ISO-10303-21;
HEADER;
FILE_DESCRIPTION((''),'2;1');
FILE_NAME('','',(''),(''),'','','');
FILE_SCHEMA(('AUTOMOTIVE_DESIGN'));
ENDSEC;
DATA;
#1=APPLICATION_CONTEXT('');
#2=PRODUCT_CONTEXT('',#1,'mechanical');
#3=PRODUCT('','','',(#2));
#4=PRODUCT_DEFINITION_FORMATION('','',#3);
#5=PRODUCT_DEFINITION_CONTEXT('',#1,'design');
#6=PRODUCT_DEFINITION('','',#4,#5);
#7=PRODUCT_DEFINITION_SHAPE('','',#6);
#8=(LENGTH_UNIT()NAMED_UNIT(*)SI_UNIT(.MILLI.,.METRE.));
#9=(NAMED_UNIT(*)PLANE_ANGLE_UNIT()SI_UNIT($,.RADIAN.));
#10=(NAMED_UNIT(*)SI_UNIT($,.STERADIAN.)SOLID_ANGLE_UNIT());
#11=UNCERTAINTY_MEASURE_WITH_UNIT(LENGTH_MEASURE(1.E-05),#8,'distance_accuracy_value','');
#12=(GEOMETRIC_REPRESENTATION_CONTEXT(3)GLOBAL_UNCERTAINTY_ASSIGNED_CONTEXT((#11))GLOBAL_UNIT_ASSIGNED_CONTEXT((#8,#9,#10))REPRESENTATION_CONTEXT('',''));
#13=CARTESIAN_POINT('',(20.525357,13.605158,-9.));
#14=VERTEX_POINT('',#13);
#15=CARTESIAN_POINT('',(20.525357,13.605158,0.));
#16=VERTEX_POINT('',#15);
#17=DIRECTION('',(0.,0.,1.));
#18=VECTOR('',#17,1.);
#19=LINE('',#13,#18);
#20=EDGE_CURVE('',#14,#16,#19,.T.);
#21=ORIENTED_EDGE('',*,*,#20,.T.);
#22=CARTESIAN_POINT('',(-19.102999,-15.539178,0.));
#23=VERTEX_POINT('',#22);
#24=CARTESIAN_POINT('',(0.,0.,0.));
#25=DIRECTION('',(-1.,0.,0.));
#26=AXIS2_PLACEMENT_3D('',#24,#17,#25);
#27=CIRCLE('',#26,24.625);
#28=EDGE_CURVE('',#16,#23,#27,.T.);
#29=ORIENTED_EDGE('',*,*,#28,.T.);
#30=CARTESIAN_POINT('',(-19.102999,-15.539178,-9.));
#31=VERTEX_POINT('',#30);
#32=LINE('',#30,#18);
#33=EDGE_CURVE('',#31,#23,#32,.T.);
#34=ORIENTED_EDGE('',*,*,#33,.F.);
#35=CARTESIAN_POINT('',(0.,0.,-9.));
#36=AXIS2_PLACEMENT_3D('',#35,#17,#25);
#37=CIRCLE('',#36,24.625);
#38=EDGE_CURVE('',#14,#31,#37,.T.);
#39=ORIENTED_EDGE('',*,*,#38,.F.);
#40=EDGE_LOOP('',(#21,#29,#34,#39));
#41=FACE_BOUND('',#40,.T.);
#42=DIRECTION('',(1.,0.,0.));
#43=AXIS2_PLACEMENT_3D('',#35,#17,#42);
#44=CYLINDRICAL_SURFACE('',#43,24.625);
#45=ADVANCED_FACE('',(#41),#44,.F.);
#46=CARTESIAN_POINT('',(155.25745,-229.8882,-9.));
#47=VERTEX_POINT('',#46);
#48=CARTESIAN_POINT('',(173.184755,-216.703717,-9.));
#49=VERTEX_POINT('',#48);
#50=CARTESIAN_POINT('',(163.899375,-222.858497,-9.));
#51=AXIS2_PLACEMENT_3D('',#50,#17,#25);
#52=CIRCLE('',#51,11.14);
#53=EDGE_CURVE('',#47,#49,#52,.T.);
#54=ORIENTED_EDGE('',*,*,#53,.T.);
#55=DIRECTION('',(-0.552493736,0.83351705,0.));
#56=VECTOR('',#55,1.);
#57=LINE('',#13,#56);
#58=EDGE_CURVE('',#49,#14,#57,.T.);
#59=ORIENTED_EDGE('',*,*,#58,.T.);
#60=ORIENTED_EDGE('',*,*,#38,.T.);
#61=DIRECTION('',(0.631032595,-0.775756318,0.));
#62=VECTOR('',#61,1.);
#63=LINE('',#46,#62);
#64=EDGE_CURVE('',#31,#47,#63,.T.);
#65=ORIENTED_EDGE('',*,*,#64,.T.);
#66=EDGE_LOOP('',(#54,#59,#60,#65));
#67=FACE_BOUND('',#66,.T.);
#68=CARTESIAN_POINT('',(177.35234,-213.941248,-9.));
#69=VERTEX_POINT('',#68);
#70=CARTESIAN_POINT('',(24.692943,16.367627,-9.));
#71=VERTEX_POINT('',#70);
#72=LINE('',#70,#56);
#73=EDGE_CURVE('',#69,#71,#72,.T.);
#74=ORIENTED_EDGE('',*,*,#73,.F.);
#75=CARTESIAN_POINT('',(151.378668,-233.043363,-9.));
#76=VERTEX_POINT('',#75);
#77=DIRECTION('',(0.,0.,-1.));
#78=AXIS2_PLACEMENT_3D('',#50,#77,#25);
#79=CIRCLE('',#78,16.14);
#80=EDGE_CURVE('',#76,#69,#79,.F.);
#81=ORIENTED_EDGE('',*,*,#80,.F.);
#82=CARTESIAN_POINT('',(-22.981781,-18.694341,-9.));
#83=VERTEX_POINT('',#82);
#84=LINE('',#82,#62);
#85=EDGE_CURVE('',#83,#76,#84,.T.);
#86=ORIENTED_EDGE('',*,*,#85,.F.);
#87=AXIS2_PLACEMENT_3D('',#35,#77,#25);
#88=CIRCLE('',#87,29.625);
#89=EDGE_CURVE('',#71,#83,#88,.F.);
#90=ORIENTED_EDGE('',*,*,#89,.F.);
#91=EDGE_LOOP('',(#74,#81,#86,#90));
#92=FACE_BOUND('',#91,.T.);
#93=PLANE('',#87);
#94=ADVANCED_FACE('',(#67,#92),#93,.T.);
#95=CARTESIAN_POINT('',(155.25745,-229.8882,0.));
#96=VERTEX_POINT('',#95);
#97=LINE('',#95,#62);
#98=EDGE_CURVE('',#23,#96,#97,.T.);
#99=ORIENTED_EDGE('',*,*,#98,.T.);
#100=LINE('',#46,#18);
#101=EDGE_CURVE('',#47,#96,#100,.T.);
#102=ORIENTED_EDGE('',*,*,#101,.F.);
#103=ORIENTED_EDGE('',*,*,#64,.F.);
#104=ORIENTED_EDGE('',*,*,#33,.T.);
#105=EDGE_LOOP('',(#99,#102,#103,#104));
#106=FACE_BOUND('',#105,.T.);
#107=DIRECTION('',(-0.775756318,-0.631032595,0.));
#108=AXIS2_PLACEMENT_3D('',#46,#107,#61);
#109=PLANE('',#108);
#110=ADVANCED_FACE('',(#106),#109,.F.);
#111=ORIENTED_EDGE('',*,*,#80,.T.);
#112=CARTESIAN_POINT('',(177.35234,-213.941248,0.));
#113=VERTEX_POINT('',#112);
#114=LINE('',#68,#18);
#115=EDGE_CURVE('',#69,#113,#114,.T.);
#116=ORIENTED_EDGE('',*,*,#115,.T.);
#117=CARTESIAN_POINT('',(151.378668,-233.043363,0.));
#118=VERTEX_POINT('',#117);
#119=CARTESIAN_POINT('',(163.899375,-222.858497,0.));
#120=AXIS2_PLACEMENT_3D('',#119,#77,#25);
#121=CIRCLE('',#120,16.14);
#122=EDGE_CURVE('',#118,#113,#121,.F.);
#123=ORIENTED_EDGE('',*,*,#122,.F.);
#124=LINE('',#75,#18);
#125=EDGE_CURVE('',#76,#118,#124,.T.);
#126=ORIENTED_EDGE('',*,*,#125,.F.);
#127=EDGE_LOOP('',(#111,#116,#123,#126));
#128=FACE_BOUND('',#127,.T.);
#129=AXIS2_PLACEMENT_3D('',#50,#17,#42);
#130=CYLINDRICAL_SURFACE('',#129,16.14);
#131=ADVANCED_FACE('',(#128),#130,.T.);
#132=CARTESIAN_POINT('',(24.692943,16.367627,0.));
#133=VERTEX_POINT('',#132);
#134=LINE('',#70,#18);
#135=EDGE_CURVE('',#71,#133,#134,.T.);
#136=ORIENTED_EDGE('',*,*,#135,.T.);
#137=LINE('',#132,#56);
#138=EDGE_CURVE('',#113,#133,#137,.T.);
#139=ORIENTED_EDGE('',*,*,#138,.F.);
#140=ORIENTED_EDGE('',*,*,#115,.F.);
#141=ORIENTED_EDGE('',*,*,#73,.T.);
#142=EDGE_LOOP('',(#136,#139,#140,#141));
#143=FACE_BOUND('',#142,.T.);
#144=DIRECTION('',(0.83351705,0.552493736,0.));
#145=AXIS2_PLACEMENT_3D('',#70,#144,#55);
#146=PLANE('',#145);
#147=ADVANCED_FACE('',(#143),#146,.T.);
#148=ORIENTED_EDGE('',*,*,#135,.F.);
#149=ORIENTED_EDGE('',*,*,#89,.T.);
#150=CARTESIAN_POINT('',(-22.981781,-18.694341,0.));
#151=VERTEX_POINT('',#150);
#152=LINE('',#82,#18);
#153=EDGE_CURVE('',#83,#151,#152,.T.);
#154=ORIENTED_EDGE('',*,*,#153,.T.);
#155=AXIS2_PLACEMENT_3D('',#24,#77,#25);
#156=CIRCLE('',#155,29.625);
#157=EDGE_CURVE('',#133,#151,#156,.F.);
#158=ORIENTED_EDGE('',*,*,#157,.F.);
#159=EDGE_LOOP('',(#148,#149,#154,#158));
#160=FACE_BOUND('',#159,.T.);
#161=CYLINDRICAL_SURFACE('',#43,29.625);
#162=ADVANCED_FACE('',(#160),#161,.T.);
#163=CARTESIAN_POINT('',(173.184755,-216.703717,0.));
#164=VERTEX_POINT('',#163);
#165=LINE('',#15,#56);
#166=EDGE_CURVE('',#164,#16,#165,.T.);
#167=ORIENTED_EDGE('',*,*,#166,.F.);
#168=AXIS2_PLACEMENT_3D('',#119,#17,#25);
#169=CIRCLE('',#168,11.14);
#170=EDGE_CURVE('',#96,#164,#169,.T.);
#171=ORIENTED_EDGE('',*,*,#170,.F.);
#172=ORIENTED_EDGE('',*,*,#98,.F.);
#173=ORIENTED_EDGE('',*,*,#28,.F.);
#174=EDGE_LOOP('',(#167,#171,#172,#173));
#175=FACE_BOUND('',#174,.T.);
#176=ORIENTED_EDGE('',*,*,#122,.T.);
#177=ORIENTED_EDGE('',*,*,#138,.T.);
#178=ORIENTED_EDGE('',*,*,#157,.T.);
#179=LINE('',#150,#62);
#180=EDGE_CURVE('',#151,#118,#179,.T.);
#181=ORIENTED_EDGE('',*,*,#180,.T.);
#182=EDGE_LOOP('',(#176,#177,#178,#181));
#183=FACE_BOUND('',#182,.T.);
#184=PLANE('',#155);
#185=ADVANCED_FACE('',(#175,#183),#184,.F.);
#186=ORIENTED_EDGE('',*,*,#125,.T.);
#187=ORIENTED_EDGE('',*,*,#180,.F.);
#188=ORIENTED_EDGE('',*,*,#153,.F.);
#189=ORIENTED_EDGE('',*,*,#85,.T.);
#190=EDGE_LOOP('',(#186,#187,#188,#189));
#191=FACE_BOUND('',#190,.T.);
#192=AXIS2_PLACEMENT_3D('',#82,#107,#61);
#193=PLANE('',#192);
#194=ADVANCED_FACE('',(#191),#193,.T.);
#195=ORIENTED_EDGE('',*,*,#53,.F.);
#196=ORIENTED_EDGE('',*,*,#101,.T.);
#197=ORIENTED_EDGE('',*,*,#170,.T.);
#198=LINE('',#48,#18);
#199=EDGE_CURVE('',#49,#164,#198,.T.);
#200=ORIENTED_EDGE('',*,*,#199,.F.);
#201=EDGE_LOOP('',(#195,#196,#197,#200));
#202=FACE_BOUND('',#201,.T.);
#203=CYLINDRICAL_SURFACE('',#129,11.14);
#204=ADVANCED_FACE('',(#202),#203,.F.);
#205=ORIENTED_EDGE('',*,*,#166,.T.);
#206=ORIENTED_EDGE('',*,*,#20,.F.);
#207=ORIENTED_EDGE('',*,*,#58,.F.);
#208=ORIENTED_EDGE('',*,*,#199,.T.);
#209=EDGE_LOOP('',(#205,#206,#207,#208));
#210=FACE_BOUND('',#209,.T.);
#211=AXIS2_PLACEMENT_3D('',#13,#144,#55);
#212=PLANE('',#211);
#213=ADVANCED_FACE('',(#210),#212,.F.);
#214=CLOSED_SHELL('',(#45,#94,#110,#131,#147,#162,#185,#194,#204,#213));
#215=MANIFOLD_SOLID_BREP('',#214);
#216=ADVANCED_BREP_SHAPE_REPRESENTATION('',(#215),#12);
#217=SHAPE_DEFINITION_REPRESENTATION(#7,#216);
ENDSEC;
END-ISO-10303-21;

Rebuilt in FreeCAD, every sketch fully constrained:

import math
import FreeCAD as App
import Part
import Sketcher

V = App.Vector
Q = App.Units.Quantity

doc = App.newDocument("Part")
params = doc.addObject("Spreadsheet::Sheet", "Params")
for row, (alias, value) in enumerate([
    ("sketch1_radius", "16.14 mm"),
    ("sketch1_radius2", "11.14 mm"),
    ("pad1_length", "9 mm"),
], start=1):
    params.set(f"A{row}", alias)
    params.set(f"B{row}", "=" + value)
    params.setAlias(f"B{row}", alias)

body = doc.addObject("PartDesign::Body", "Body")

sketch1 = body.newObject("Sketcher::SketchObject", "Sketch")
sketch1.AttachmentSupport = (doc.getObject("XY_Plane"), [""])
sketch1.MapMode = "FlatFace"
sketch1.addGeometry([
    Part.LineSegment(V(-23, -19, 0), V(151, -233, 0)),
    Part.ArcOfCircle(Part.Circle(V(164, -223, 0), V(0, 0, 1), 16), math.radians(-141), math.radians(34)),
    Part.LineSegment(V(177, -214, 0), V(25, 16, 0)),
    Part.ArcOfCircle(Part.Circle(V(0, 0, 0), V(0, 0, 1), 30), math.radians(34), math.radians(219)),
    Part.LineSegment(V(155, -230, 0), V(-19, -16, 0)),
    Part.ArcOfCircle(Part.Circle(V(0, 0, 0), V(0, 0, 1), 25), math.radians(34), math.radians(219)),
    Part.LineSegment(V(21, 14, 0), V(173, -217, 0)),
    Part.ArcOfCircle(Part.Circle(V(164, -223, 0), V(0, 0, 1), 11), math.radians(-141), math.radians(34)),
], False)
sketch1.addConstraint([
    Sketcher.Constraint("Tangent", 0, 2, 1, 1),
    Sketcher.Constraint("Tangent", 1, 2, 2, 1),
    Sketcher.Constraint("Tangent", 2, 2, 3, 1),
    Sketcher.Constraint("Tangent", 3, 2, 0, 1),
    Sketcher.Constraint("Tangent", 4, 2, 5, 2),
    Sketcher.Constraint("Tangent", 5, 1, 6, 1),
    Sketcher.Constraint("Tangent", 6, 2, 7, 2),
    Sketcher.Constraint("Tangent", 7, 1, 4, 1),
    Sketcher.Constraint("Coincident", 3, 3, -1, 1),
    Sketcher.Constraint("Coincident", 5, 3, -1, 1),
    Sketcher.Constraint("Coincident", 7, 3, 1, 3),
    Sketcher.Constraint("Parallel", 0, 4),
    Sketcher.Constraint("Radius", 1, Q("16.14 mm")),
    Sketcher.Constraint("Radius", 7, Q("11.14 mm")),
    Sketcher.Constraint("Radius", 3, Q("29.625 mm")),
    Sketcher.Constraint("DistanceX", 4, 2, -1, 1, Q("19.102999 mm")),
    Sketcher.Constraint("DistanceY", 7, 1, -1, 1, Q("229.8882 mm")),
])
sketch1.setExpression("Constraints[12]", "Params.sketch1_radius")
sketch1.setExpression("Constraints[13]", "Params.sketch1_radius2")
pad1 = body.newObject("PartDesign::Pad", "Pad")
pad1.Profile = sketch1
pad1.setExpression("Length", "Params.pad1_length")
pad1.Reversed = True

doc.recompute()
